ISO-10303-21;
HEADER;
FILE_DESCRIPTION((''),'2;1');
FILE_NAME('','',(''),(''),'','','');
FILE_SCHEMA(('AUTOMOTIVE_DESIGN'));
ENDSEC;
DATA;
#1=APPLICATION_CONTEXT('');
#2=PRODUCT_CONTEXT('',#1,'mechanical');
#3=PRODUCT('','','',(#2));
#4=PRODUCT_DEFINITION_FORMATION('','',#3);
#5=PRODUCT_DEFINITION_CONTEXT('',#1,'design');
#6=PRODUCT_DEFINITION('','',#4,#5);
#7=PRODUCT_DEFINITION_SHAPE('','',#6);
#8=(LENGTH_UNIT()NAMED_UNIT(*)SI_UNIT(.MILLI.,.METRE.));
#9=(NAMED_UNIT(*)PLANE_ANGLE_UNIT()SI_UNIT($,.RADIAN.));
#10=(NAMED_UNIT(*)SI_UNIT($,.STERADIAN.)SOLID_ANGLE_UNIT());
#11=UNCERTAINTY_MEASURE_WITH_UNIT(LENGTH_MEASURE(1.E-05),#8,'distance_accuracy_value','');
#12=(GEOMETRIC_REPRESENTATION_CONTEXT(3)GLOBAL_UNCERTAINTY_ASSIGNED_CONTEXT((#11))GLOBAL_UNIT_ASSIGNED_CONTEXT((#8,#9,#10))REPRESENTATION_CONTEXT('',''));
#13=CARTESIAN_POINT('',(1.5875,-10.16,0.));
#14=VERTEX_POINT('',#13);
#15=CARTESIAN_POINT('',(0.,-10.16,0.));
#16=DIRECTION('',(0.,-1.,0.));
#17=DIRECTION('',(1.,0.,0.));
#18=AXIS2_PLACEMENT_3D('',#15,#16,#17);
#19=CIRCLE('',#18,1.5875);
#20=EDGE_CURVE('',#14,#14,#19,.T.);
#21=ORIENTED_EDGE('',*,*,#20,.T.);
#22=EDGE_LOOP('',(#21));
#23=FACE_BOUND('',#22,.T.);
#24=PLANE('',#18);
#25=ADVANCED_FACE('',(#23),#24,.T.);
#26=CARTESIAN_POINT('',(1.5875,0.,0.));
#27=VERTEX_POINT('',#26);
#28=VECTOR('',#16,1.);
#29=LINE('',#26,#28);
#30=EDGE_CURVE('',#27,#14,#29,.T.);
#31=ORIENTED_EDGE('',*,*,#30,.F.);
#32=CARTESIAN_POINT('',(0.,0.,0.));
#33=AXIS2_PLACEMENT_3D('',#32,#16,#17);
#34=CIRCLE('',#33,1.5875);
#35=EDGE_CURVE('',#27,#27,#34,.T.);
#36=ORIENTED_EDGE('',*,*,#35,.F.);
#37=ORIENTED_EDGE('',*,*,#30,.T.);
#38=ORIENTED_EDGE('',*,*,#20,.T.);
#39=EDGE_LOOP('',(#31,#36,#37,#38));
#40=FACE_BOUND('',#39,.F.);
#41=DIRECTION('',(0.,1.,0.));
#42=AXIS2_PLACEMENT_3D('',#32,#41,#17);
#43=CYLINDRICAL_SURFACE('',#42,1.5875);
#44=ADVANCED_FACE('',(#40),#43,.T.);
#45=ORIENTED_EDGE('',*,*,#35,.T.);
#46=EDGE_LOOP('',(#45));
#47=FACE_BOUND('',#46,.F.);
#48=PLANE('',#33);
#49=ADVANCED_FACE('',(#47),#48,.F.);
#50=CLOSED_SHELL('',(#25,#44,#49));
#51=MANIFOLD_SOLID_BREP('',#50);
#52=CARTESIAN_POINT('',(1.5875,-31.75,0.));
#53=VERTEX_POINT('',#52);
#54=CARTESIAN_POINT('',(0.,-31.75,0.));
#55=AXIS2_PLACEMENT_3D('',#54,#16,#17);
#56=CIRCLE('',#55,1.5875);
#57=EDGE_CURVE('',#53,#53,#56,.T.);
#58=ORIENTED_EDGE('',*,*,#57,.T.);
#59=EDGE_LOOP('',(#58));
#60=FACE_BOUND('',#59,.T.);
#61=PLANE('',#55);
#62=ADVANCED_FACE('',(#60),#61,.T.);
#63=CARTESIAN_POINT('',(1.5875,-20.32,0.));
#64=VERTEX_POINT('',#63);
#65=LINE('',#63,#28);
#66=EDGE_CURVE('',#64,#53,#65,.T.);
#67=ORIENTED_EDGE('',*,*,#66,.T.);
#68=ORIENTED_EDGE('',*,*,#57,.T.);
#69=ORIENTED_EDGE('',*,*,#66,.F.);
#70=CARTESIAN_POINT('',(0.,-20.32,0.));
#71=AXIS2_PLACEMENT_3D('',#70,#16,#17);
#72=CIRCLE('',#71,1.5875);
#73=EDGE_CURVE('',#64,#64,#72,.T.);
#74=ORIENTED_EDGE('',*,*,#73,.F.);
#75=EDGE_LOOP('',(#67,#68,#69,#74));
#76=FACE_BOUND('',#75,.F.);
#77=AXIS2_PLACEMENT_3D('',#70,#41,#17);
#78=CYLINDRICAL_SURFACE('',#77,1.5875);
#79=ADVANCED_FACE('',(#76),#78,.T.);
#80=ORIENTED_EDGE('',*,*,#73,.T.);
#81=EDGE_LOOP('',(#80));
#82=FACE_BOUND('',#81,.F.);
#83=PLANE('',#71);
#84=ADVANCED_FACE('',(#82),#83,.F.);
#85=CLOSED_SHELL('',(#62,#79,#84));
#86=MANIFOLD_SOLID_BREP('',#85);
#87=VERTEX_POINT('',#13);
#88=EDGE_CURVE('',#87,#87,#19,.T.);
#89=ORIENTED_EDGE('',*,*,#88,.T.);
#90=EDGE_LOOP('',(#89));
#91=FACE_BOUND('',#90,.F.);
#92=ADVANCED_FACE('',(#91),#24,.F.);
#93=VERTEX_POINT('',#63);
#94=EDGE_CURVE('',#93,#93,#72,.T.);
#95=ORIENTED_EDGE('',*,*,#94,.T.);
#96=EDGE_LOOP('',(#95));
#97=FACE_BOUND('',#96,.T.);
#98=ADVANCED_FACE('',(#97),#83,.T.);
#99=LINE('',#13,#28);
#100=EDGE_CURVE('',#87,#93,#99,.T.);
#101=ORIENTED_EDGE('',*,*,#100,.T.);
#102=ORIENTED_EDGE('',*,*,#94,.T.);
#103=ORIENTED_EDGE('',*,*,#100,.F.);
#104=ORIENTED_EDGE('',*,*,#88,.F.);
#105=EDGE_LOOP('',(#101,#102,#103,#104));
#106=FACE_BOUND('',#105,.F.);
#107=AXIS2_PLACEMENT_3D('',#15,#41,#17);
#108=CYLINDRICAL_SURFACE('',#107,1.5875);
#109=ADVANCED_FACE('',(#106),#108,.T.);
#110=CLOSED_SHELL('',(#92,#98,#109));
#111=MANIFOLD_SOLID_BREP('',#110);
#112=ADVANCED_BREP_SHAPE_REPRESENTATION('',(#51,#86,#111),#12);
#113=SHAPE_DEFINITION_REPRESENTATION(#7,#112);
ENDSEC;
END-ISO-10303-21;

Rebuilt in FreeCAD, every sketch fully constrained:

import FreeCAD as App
import Part
import Sketcher
from FreeCAD import Vector
Q = App.Units.Quantity

doc = App.newDocument("Part")
body = doc.addObject("PartDesign::Body", "Body")

# Sketch on XZ plane
sketch1 = doc.addObject("Sketcher::SketchObject", "Sketch")
body.addObject(sketch1)
sketch1.AttachmentSupport = (doc.XZ_Plane, [""])
sketch1.MapMode = "FlatFace"
sketch1.addGeometry(Part.Circle(Vector(0, 0, 0), Vector(0, 0, 1), 1.6), False)
sketch1.addConstraint(Sketcher.Constraint("Coincident", 0, 3, -1, 1))
sketch1.addConstraint(Sketcher.Constraint("Diameter", 0, Q("0.125 in")))
pad1 = doc.addObject("PartDesign::Pad", "Pad")
body.addObject(pad1)
pad1.Profile = sketch1
pad1.Length = Q("0.4 in")
body2 = doc.addObject("PartDesign::Body", "Body001")

# Sketch on XZ plane
sketch2 = doc.addObject("Sketcher::SketchObject", "Sketch001")
body2.addObject(sketch2)
sketch2.AttachmentSupport = (doc.getObject("XZ_Plane001"), [""])
sketch2.MapMode = "FlatFace"
sketch2.AttachmentOffset = App.Placement(Vector(0, 0, 0.4 * 25.4), App.Rotation())
sketch2.addGeometry(Part.Circle(Vector(0, 0, 0), Vector(0, 0, 1), 1.6), False)
sketch2.addConstraint(Sketcher.Constraint("Coincident", 0, 3, -1, 1))
sketch2.addConstraint(Sketcher.Constraint("Diameter", 0, Q("0.125 in")))
pad2 = doc.addObject("PartDesign::Pad", "Pad001")
body2.addObject(pad2)
pad2.Profile = sketch2
pad2.Length = Q("0.4 in")
body3 = doc.addObject("PartDesign::Body", "Body002")

# Sketch on XZ plane
sketch3 = doc.addObject("Sketcher::SketchObject", "Sketch002")
body3.addObject(sketch3)
sketch3.AttachmentSupport = (doc.getObject("XZ_Plane002"), [""])
sketch3.MapMode = "FlatFace"
sketch3.AttachmentOffset = App.Placement(Vector(0, 0, 0.8 * 25.4), App.Rotation())
sketch3.addGeometry(Part.Circle(Vector(0, 0, 0), Vector(0, 0, 1), 1.6), False)
sketch3.addConstraint(Sketcher.Constraint("Coincident", 0, 3, -1, 1))
sketch3.addConstraint(Sketcher.Constraint("Diameter", 0, Q("0.125 in")))
pad3 = doc.addObject("PartDesign::Pad", "Pad002")
body3.addObject(pad3)
pad3.Profile = sketch3
pad3.Length = Q("0.45 in")

doc.recompute()
